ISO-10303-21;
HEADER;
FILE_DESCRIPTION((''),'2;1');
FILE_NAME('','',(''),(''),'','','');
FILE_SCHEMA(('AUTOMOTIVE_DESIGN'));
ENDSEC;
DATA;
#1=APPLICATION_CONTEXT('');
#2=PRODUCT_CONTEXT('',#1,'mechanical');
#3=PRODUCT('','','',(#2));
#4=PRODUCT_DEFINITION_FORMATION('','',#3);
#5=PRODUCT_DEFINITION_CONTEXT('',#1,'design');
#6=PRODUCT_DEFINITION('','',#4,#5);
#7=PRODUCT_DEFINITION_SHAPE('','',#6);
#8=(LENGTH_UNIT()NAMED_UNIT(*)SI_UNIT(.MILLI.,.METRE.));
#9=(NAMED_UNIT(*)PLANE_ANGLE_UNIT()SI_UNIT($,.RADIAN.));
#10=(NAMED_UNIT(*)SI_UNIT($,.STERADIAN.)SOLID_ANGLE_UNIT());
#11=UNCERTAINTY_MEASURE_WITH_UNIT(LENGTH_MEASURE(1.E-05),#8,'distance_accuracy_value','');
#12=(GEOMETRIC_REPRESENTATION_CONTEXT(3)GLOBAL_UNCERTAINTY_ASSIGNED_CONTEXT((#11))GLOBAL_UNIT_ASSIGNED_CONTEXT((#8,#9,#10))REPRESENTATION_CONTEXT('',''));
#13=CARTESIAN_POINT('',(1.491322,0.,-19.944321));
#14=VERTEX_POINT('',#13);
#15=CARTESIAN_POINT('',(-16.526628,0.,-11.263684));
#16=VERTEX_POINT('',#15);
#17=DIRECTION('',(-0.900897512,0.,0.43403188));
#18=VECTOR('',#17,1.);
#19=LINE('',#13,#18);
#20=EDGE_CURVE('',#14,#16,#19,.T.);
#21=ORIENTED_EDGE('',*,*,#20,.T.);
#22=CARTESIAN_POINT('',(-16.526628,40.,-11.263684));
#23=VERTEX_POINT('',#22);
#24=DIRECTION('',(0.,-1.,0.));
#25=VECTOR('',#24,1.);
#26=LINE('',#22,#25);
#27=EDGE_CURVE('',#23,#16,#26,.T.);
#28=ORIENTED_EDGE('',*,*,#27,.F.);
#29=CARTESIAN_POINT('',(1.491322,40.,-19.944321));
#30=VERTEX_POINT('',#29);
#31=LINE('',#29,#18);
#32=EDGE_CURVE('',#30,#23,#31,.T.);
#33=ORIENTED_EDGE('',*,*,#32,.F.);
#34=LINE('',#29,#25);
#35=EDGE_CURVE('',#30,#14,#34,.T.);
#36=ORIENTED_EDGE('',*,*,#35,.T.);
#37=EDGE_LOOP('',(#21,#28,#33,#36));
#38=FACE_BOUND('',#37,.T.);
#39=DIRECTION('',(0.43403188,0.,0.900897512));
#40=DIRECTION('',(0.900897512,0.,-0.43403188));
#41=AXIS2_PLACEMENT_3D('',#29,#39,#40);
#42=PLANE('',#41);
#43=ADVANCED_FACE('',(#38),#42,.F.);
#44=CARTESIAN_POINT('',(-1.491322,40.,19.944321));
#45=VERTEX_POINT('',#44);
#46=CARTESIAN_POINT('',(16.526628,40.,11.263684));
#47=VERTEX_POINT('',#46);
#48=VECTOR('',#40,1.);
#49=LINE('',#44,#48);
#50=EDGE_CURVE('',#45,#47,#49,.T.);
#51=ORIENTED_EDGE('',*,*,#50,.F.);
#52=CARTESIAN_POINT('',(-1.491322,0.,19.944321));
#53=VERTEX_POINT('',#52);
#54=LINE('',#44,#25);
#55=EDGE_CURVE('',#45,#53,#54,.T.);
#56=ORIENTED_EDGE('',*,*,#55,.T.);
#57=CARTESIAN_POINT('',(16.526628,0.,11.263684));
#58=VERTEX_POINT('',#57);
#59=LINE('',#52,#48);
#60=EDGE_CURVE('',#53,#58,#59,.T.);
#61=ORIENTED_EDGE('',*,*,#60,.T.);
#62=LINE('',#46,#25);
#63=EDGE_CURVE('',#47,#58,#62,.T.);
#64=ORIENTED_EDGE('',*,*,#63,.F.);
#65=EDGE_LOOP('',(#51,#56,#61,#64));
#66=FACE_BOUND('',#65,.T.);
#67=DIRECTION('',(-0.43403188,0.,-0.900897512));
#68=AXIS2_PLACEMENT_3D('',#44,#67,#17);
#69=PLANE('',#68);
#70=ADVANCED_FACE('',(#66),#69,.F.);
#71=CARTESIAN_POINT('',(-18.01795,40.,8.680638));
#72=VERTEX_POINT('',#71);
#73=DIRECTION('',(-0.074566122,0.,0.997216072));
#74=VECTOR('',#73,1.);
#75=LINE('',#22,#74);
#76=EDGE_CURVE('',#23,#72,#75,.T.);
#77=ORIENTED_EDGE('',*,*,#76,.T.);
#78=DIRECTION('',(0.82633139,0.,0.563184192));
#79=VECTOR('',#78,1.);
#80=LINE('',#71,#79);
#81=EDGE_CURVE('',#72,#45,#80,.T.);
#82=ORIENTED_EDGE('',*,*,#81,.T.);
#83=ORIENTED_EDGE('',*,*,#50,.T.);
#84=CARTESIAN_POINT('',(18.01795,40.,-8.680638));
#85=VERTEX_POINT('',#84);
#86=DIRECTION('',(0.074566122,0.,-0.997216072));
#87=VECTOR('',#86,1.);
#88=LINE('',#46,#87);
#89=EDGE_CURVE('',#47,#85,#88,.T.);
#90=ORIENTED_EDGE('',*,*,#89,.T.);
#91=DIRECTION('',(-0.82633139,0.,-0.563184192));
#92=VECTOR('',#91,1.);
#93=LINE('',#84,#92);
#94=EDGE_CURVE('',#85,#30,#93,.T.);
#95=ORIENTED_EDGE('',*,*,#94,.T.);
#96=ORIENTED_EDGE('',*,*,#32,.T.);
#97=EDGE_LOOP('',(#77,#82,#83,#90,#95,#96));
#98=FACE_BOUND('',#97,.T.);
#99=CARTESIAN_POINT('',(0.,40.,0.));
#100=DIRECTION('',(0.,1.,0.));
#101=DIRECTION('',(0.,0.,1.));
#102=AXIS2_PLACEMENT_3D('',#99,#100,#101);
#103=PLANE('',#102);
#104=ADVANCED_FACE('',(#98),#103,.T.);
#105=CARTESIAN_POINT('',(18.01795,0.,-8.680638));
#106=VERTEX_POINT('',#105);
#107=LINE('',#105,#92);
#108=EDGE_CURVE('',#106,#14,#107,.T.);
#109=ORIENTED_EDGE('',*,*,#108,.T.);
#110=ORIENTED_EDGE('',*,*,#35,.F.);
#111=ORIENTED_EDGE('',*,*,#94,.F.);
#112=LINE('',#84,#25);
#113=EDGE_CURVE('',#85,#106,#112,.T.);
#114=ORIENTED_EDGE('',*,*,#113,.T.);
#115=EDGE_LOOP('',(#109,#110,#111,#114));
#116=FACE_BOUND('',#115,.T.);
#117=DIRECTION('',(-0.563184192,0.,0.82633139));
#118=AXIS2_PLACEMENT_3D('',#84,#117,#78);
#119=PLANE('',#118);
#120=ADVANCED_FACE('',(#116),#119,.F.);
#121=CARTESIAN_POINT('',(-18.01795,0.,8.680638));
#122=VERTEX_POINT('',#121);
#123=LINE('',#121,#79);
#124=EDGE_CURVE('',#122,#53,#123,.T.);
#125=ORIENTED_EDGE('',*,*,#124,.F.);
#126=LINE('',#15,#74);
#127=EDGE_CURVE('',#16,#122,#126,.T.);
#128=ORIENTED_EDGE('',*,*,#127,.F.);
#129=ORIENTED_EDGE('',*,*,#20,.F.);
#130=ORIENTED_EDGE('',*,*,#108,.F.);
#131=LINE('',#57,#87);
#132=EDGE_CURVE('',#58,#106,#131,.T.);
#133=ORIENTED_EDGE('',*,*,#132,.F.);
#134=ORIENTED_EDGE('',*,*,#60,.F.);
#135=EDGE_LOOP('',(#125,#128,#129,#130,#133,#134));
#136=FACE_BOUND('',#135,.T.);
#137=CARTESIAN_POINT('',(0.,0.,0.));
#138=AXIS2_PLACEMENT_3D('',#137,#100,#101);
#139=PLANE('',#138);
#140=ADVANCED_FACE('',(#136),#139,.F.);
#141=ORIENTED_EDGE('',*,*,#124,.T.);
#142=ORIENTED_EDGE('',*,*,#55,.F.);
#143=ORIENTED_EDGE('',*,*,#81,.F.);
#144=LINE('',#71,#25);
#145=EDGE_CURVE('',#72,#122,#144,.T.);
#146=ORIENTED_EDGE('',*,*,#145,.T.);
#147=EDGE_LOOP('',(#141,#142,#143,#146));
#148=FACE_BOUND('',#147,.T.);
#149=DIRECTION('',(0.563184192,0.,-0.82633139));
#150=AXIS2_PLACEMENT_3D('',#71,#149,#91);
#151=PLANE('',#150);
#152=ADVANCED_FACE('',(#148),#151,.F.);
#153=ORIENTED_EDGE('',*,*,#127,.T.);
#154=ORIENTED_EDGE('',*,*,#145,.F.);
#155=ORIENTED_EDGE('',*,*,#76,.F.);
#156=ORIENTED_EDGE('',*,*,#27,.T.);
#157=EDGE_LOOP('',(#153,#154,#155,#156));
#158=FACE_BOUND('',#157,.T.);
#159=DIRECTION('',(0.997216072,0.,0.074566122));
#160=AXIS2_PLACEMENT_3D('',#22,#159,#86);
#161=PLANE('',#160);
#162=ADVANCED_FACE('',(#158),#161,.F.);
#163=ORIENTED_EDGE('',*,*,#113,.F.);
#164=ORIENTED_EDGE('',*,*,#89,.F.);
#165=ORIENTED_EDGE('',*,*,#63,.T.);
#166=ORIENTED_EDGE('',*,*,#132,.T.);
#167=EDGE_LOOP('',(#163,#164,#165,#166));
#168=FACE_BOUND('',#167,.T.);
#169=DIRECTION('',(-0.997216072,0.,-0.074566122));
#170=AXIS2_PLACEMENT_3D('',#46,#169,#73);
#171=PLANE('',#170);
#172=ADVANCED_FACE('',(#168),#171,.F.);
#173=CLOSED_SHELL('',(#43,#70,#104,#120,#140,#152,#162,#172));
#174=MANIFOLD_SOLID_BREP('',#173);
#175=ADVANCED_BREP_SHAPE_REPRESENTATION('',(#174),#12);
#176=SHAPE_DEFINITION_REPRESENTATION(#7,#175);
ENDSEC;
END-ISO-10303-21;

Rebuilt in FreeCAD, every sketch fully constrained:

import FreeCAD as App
import Part
import Sketcher
from FreeCAD import Vector


def add_polygon(sketch, points):
    """Adds a closed chain of lines whose ends are joined by coincident constraints."""
    first, n = sketch.GeometryCount, len(points)
    for a, b in zip(points, points[1:] + points[:1]):
        sketch.addGeometry(Part.LineSegment(App.Vector(*a, 0), App.Vector(*b, 0)), False)
    for i in range(n):
        sketch.addConstraint(Sketcher.Constraint("Coincident", first + i, 2, first + (i + 1) % n, 1))

doc = App.newDocument("Part")
body = doc.addObject("PartDesign::Body", "Body")

# Sketch on XZ plane
sketch1 = body.newObject("Sketcher::SketchObject", "Sketch")
sketch1.AttachmentSupport = (doc.getObject("XZ_Plane"), [""])
sketch1.MapMode = "FlatFace"
add_polygon(sketch1, [(17, 11), (18, -9), (1, -20), (-17, -11), (-18, 9), (-1, 20)])  # lines 0-5
sketch1.addConstraint([
    Sketcher.Constraint("Symmetric", 0, 2, 3, 2, -1, 1),
    Sketcher.Constraint("Symmetric", 1, 2, 4, 2, -1, 1),
    Sketcher.Constraint("Symmetric", 2, 2, 5, 2, -1, 1),
    Sketcher.Constraint("Equal", 0, 1),
    Sketcher.Constraint("Equal", 1, 2),
    Sketcher.Constraint("Distance", 0, 20.0),
    Sketcher.Constraint("DistanceX", 3, 2, 0, 2, 36.0359),
    Sketcher.Constraint("DistanceY", 1, 2, -1, 1, 19.944321),
    Sketcher.Constraint("DistanceX", 2, 2, 1, 2, 18.01795),
])
pad1 = body.newObject("PartDesign::Pad", "Pad")
pad1.Profile = sketch1
pad1.Length = 40
pad1.Reversed = True

doc.recompute()
